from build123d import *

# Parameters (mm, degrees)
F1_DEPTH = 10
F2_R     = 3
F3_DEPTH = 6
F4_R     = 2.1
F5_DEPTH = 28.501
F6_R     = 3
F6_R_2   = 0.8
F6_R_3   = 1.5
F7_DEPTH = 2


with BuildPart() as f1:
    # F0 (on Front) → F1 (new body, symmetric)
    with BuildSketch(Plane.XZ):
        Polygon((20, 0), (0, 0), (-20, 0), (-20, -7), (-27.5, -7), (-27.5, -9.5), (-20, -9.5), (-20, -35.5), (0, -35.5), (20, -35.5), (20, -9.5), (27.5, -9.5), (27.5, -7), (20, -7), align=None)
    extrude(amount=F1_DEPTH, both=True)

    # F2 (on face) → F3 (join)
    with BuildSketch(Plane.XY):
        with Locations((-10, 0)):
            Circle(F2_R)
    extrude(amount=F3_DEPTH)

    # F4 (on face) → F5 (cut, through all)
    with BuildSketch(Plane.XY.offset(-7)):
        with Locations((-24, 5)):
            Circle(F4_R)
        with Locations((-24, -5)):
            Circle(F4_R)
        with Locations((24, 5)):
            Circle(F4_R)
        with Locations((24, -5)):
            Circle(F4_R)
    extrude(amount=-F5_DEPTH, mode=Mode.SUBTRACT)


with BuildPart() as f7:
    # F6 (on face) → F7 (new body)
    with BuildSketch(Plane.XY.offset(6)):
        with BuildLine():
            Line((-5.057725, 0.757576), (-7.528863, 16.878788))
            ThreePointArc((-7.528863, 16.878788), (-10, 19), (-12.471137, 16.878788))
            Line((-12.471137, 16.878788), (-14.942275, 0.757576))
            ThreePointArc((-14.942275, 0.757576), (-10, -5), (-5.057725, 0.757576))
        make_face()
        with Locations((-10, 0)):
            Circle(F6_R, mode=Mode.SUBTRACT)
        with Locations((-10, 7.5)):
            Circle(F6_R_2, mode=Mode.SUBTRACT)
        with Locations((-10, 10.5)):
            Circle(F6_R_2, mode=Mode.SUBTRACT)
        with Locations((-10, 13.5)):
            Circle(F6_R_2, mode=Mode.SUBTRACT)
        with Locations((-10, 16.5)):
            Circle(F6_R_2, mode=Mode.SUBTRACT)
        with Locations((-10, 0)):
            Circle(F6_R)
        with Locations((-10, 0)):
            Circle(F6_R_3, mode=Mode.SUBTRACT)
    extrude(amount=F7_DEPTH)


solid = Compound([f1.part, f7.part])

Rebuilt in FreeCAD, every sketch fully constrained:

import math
import FreeCAD as App
import Part
import Sketcher
from FreeCAD import Vector
Q = App.Units.Quantity


def add_polygon(sketch, points):
    """Adds a closed chain of lines whose ends are joined by coincident constraints."""
    first, n = sketch.GeometryCount, len(points)
    for a, b in zip(points, points[1:] + points[:1]):
        sketch.addGeometry(Part.LineSegment(App.Vector(*a, 0), App.Vector(*b, 0)), False)
    for i in range(n):
        sketch.addConstraint(Sketcher.Constraint("Coincident", first + i, 2, first + (i + 1) % n, 1))

doc = App.newDocument("Part")
body = doc.addObject("PartDesign::Body", "Body")

# Sketch on XZ plane
sketch1 = body.newObject("Sketcher::SketchObject", "Sketch")
sketch1.AttachmentSupport = (doc.getObject("XZ_Plane"), [""])
sketch1.MapMode = "FlatFace"
add_polygon(sketch1, [(20, 0), (-20, 0), (-20, -7), (-27.5, -7), (-27.5, -9.5), (-20, -9.5), (-20, -35.5), (20, -35.5), (20, -9.5), (27.5, -9.5), (27.5, -7), (20, -7)])  # lines 0-11
sketch1.addConstraint([
    Sketcher.Constraint("Horizontal", 0),
    Sketcher.Constraint("Vertical", 1),
    Sketcher.Constraint("Horizontal", 2),
    Sketcher.Constraint("Vertical", 3),
    Sketcher.Constraint("Horizontal", 4),
    Sketcher.Constraint("Vertical", 5),
    Sketcher.Constraint("Horizontal", 6),
    Sketcher.Constraint("Vertical", 7),
    Sketcher.Constraint("Horizontal", 8),
    Sketcher.Constraint("Vertical", 9),
    Sketcher.Constraint("Horizontal", 10),
    Sketcher.Constraint("Vertical", 11),
    Sketcher.Constraint("Symmetric", 0, 2, 11, 2, -1, 1),
    Sketcher.Constraint("Symmetric", 4, 2, 7, 2, -2),
    Sketcher.Constraint("Symmetric", 2, 2, 9, 2, -2),
    Sketcher.Constraint("Vertical", 1, 2, 4, 2),
    Sketcher.Constraint("DistanceX", 0, 2, 0, 1, Q("40 mm")),
    Sketcher.Constraint("DistanceY", 1, 2, 1, 1, Q("7 mm")),
    Sketcher.Constraint("DistanceY", 5, 2, 5, 1, Q("26 mm")),
    Sketcher.Constraint("DistanceX", 2, 2, 2, 1, Q("7.5 mm")),
    Sketcher.Constraint("DistanceY", 3, 2, 3, 1, Q("2.5 mm")),
])
pad1 = body.newObject("PartDesign::Pad", "Pad")
pad1.Profile = sketch1
pad1.Length = 20
pad1.Midplane = True

# Sketch on XY plane
sketch2 = body.newObject("Sketcher::SketchObject", "Sketch001")
sketch2.AttachmentSupport = (doc.getObject("XY_Plane"), [""])
sketch2.MapMode = "FlatFace"
sketch2.addGeometry(Part.Circle(Vector(-10, 0, 0), Vector(0, 0, 1), 3), False)
sketch2.addConstraint([
    Sketcher.Constraint("PointOnObject", 0, 3, -1),
    Sketcher.Constraint("Diameter", 0, Q("6 mm")),
    Sketcher.Constraint("DistanceX", 0, 3, -1, 1, Q("10 mm")),
])
pad2 = body.newObject("PartDesign::Pad", "Pad001")
pad2.Profile = sketch2
pad2.Length = 6

# Sketch on XY plane
sketch3 = body.newObject("Sketcher::SketchObject", "Sketch002")
sketch3.AttachmentSupport = (doc.getObject("XY_Plane"), [""])
sketch3.MapMode = "FlatFace"
sketch3.AttachmentOffset = App.Placement(Vector(0, 0, -7), App.Rotation())
sketch3.addGeometry([
    Part.Circle(Vector(-24, 5, 0), Vector(0, 0, 1), 2.1),
    Part.Circle(Vector(-24, -5, 0), Vector(0, 0, 1), 2.1),
    Part.Circle(Vector(24, 5, 0), Vector(0, 0, 1), 2.1),
    Part.Circle(Vector(24, -5, 0), Vector(0, 0, 1), 2.1),
], False)
sketch3.addConstraint([
    Sketcher.Constraint("Equal", 0, 1),
    Sketcher.Constraint("Equal", 1, 2),
    Sketcher.Constraint("Equal", 2, 3),
    Sketcher.Constraint("Symmetric", 1, 3, 2, 3, -1, 1),
    Sketcher.Constraint("Symmetric", 0, 3, 3, 3, -1, 1),
    Sketcher.Constraint("Symmetric", 0, 3, 2, 3, -2),
    Sketcher.Constraint("Diameter", 0, Q("4.2 mm")),
    Sketcher.Constraint("DistanceX", 0, 3, -1, 1, Q("24 mm")),
    Sketcher.Constraint("DistanceY", -1, 1, 0, 3, Q("5 mm")),
])
pocket1 = body.newObject("PartDesign::Pocket", "Pocket")
pocket1.Profile = sketch3
pocket1.Type = "ThroughAll"
body2 = doc.addObject("PartDesign::Body", "Body001")

# Sketch on XY plane
sketch4 = body2.newObject("Sketcher::SketchObject", "Sketch003")
sketch4.AttachmentSupport = (doc.getObject("XY_Plane001"), [""])
sketch4.MapMode = "FlatFace"
sketch4.AttachmentOffset = App.Placement(Vector(0, 0, 6), App.Rotation())
sketch4.addGeometry([
    Part.LineSegment(Vector(-5.057725, 0.757576, 0), Vector(-7.528863, 16.878788, 0)),  # 0
    Part.ArcOfCircle(Part.Circle(Vector(-10, 16.5, 0), Vector(0, 0, 1), 2.5), math.radians(8.714738), math.radians(171.285262)),  # 1
    Part.LineSegment(Vector(-12.471137, 16.878788, 0), Vector(-14.942275, 0.757576, 0)),  # 2
    Part.ArcOfCircle(Part.Circle(Vector(-10, 0, 0), Vector(0, 0, 1), 5), math.radians(171.285259), math.radians(368.714741)),  # 3
    Part.Circle(Vector(-10, 0, 0), Vector(0, 0, 1), 1.5),  # 4
    Part.Circle(Vector(-10, 7.5, 0), Vector(0, 0, 1), 0.8),  # 5
    Part.Circle(Vector(-10, 10.5, 0), Vector(0, 0, 1), 0.8),  # 6
    Part.Circle(Vector(-10, 13.5, 0), Vector(0, 0, 1), 0.8),  # 7
    Part.Circle(Vector(-10, 16.5, 0), Vector(0, 0, 1), 0.8),  # 8
], False)
sketch4.addConstraint([
    Sketcher.Constraint("Tangent", 0, 2, 1, 1),
    Sketcher.Constraint("Tangent", 1, 2, 2, 1),
    Sketcher.Constraint("Tangent", 2, 2, 3, 1),
    Sketcher.Constraint("Tangent", 3, 2, 0, 1),
    Sketcher.Constraint("Coincident", 4, 3, 3, 3),
    Sketcher.Constraint("Coincident", 8, 3, 1, 3),
    Sketcher.Constraint("Equal", 5, 6),
    Sketcher.Constraint("Equal", 6, 7),
    Sketcher.Constraint("Equal", 7, 8),
    Sketcher.Constraint("PointOnObject", 3, 3, -1),
    Sketcher.Constraint("Horizontal", 0, 2, 1, 2),
    Sketcher.Constraint("Vertical", 4, 3, 5, 3),
    Sketcher.Constraint("Vertical", 5, 3, 6, 3),
    Sketcher.Constraint("Vertical", 6, 3, 7, 3),
    Sketcher.Constraint("Diameter", 4, Q("3 mm")),
    Sketcher.Constraint("Radius", 3, Q("5 mm")),
    Sketcher.Constraint("Diameter", 5, Q("1.6 mm")),
    Sketcher.Constraint("Radius", 1, Q("2.5 mm")),
    Sketcher.Constraint("DistanceX", 1, 3, -1, 1, Q("10 mm")),
    Sketcher.Constraint("DistanceY", 5, 3, 1, 3, Q("9 mm")),
    Sketcher.Constraint("DistanceY", 5, 3, 6, 3, Q("3 mm")),
    Sketcher.Constraint("DistanceY", 6, 3, 7, 3, Q("3 mm")),
    Sketcher.Constraint("DistanceY", -1, 1, 1, 3, Q("16.5 mm")),
])
pad3 = body2.newObject("PartDesign::Pad", "Pad002")
pad3.Profile = sketch4
pad3.Length = 2

doc.recompute()
